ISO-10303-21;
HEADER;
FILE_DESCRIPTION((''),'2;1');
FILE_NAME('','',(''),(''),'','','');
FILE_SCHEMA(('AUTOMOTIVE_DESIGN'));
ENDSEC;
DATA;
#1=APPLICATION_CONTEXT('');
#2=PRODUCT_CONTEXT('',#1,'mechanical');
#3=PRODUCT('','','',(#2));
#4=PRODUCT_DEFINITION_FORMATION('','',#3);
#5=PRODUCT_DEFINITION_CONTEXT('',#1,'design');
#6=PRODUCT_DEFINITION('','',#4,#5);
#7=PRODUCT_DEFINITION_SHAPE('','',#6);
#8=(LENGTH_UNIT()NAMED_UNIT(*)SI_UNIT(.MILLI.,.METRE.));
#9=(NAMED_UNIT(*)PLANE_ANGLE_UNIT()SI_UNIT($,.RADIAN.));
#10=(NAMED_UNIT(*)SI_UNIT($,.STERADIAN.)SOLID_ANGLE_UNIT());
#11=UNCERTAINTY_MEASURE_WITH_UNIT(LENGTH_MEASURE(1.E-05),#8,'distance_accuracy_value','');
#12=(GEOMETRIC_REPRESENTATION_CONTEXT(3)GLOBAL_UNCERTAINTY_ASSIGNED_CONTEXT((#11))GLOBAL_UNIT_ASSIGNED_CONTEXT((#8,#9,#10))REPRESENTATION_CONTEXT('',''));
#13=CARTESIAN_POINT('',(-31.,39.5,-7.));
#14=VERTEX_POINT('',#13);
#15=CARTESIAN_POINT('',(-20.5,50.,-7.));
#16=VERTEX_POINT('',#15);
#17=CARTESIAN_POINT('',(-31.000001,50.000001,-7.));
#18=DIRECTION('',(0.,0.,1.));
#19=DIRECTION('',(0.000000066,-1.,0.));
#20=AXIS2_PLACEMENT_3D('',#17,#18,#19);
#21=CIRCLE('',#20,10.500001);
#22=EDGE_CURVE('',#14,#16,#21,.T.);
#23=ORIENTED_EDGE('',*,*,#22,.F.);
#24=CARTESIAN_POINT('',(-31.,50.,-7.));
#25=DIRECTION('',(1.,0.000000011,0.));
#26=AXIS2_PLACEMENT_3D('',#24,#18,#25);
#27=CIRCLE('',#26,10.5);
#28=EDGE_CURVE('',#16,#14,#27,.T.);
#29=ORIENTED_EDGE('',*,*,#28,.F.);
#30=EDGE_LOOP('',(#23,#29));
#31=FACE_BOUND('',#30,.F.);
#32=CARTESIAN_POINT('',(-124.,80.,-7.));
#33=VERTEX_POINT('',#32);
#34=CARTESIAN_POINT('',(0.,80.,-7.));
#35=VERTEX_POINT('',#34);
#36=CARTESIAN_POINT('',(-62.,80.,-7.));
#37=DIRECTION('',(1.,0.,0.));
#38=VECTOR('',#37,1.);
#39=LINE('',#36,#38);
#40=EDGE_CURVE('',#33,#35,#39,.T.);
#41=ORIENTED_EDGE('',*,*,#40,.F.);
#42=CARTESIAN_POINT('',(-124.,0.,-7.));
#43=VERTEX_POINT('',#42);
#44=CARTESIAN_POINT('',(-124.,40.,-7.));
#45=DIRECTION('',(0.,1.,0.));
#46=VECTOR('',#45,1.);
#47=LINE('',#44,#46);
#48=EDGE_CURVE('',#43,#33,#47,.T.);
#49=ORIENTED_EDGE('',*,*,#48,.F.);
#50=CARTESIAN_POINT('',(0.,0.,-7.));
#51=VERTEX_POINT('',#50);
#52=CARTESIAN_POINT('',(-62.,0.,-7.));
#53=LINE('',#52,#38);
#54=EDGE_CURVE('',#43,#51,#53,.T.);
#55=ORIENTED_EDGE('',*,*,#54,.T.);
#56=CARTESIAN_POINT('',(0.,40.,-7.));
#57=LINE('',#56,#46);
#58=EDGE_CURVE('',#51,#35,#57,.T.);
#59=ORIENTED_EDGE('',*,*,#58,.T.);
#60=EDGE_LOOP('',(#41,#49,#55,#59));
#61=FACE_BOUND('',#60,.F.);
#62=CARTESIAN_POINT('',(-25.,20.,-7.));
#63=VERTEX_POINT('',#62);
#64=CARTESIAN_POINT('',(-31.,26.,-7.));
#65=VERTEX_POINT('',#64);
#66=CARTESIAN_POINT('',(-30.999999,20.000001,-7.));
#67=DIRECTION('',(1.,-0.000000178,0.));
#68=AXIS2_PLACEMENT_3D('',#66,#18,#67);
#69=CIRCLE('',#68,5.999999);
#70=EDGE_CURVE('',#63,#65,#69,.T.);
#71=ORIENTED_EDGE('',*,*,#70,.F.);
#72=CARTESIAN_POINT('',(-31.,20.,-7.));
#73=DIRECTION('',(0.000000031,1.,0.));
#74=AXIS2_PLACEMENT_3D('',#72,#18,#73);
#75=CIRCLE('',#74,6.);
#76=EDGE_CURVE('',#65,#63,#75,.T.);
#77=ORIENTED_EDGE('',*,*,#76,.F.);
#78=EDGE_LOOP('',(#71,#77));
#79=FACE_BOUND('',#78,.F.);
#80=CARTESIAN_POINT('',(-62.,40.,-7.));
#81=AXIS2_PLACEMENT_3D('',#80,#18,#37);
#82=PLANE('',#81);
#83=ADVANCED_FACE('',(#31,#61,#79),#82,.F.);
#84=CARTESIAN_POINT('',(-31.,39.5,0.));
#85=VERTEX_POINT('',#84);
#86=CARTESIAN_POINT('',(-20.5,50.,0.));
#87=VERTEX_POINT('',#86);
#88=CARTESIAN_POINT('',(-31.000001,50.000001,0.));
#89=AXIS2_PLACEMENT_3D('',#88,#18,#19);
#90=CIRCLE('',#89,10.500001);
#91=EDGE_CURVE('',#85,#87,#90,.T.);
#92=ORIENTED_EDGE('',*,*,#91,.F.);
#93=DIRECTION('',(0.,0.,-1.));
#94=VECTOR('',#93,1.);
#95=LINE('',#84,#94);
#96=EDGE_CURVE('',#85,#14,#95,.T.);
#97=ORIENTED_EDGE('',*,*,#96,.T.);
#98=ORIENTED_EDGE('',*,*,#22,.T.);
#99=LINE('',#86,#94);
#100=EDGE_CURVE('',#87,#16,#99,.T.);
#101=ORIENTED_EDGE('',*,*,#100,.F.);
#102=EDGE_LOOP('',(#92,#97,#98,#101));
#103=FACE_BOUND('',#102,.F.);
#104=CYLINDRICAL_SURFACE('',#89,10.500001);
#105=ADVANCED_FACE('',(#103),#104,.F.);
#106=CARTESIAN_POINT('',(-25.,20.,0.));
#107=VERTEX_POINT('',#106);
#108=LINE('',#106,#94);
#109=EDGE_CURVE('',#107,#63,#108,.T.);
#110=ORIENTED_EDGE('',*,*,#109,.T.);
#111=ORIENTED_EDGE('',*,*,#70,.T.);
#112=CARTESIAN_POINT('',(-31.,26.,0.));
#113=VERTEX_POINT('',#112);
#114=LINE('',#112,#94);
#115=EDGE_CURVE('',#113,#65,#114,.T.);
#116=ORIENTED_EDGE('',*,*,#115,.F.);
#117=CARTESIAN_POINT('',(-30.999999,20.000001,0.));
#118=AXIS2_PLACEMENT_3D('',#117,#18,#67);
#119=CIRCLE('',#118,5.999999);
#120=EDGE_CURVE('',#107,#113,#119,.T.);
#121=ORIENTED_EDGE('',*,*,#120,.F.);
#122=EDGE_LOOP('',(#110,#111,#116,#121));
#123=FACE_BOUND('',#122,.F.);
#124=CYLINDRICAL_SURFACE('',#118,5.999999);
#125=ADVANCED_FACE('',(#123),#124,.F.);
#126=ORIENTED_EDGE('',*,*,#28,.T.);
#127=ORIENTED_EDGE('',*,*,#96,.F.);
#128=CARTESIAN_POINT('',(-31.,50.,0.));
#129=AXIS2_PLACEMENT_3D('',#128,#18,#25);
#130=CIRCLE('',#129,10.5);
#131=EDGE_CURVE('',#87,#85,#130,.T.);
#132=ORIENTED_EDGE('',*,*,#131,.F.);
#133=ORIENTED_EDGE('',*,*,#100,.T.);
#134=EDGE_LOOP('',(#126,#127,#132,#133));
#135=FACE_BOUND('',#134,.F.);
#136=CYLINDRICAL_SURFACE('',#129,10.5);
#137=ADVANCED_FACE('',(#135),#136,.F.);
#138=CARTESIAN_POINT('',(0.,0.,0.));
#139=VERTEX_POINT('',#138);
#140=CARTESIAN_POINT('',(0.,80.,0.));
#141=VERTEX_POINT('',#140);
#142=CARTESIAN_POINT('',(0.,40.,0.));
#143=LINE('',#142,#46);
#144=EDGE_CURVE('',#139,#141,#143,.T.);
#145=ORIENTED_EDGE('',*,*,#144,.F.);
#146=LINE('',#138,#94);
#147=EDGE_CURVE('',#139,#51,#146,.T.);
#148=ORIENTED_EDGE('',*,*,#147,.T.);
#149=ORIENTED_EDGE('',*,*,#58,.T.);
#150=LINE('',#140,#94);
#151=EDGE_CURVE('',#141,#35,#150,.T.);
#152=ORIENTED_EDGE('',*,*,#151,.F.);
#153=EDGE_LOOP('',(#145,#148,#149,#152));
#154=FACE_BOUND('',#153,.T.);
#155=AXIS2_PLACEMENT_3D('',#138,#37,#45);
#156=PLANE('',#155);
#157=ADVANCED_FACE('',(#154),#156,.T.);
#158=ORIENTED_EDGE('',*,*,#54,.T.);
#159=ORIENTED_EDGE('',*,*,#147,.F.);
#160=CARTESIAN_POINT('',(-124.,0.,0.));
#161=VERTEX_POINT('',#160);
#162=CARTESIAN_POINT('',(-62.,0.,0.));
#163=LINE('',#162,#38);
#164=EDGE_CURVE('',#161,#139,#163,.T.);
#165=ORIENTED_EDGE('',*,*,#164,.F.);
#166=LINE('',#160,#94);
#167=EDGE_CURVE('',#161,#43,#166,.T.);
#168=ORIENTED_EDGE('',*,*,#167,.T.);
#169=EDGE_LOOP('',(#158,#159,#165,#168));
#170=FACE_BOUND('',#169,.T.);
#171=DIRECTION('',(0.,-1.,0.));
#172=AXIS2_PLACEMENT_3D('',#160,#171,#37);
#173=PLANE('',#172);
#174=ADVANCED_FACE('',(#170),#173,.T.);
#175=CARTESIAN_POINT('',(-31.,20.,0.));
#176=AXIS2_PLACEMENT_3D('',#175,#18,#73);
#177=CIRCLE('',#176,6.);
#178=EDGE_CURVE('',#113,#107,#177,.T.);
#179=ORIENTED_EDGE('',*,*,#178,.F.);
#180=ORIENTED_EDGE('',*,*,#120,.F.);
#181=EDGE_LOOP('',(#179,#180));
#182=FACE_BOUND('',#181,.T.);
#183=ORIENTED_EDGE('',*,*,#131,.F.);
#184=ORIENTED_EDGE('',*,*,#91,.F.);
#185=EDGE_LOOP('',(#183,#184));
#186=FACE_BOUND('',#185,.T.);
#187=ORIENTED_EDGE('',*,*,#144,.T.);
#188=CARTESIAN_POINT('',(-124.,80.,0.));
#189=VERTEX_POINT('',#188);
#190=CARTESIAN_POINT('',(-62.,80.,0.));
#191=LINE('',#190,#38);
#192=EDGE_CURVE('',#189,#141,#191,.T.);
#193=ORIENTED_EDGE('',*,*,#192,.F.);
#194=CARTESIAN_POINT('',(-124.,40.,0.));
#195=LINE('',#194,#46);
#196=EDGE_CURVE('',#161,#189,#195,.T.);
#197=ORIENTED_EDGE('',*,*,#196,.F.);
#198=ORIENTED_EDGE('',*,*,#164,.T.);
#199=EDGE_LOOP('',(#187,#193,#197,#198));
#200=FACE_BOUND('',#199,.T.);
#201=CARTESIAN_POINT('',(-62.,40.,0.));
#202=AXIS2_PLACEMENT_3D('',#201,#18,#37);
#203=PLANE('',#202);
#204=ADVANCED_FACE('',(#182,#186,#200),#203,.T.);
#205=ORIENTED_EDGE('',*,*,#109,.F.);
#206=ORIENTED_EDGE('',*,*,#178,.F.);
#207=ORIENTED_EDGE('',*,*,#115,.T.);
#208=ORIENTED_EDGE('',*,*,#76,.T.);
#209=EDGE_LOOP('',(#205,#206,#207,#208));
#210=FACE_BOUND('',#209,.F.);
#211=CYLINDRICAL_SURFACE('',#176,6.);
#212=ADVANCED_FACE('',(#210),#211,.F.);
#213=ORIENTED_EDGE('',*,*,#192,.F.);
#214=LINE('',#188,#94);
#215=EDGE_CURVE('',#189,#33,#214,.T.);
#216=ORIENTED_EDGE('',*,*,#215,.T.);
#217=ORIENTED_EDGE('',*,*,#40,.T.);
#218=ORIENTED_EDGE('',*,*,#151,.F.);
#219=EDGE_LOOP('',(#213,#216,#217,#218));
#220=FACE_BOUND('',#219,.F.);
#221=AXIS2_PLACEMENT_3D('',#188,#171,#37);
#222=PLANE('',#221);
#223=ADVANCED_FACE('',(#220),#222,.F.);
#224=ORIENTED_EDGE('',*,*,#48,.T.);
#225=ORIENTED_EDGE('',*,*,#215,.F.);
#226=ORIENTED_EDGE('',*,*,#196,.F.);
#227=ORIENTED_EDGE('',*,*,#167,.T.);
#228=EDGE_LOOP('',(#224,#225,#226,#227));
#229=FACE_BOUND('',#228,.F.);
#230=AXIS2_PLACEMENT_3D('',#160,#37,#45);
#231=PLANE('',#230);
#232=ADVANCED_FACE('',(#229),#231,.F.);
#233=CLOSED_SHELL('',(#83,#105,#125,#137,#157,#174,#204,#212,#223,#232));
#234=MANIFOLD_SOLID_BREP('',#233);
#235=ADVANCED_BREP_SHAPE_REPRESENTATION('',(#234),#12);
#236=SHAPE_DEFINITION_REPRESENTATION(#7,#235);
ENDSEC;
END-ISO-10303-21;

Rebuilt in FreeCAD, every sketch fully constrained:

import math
import FreeCAD as App
import Part
import Sketcher

V = App.Vector

doc = App.newDocument("Part")
body = doc.addObject("PartDesign::Body", "Body")

sketch1 = doc.addObject("Sketcher::SketchObject", "Sketch")
body.addObject(sketch1)
sketch1.AttachmentSupport = (doc.XY_Plane, [""])
sketch1.MapMode = "FlatFace"
sketch1.addGeometry([
    Part.LineSegment(V(-124, 80, 0), V(-124, 0, 0)),
    Part.LineSegment(V(-124, 0, 0), V(0, 0, 0)),
    Part.LineSegment(V(0, 0, 0), V(0, 80, 0)),
    Part.LineSegment(V(0, 80, 0), V(-124, 80, 0)),
], False)
sketch1.addConstraint([
    Sketcher.Constraint("Coincident", 0, 2, 1, 1),
    Sketcher.Constraint("Coincident", 1, 2, 2, 1),
    Sketcher.Constraint("Coincident", 2, 2, 3, 1),
    Sketcher.Constraint("Coincident", 3, 2, 0, 1),
    Sketcher.Constraint("Vertical", 0),
    Sketcher.Constraint("Horizontal", 1),
    Sketcher.Constraint("Vertical", 2),
    Sketcher.Constraint("Horizontal", 3),
    Sketcher.Constraint("Coincident", 1, 2, -1, 1),
    Sketcher.Constraint("DistanceX", 1, 1, 1, 2, 124.0),
    Sketcher.Constraint("DistanceY", 0, 2, 0, 1, 80.0),
])
pad1 = doc.addObject("PartDesign::Pad", "Pad")
body.addObject(pad1)
pad1.Profile = sketch1
pad1.Length = 7
pad1.Reversed = True

sketch2 = doc.addObject("Sketcher::SketchObject", "Sketch001")
body.addObject(sketch2)
sketch2.AttachmentSupport = (doc.XY_Plane, [""])
sketch2.MapMode = "FlatFace"
sketch2.addGeometry([
    Part.ArcOfCircle(Part.Circle(V(-31, 50, 0), V(0, 0, 1), 10), math.radians(0), math.radians(270)),
    Part.ArcOfCircle(Part.Circle(V(-31, 50, 0), V(0, 0, 1), 11), math.radians(-90), math.radians(0)),
    Part.ArcOfCircle(Part.Circle(V(-31, 20, 0), V(0, 0, 1), 6), math.radians(0), math.radians(90)),
    Part.ArcOfCircle(Part.Circle(V(-31, 20, 0), V(0, 0, 1), 6), math.radians(90), math.radians(360)),
], False)
sketch2.addConstraint([
    Sketcher.Constraint("Tangent", 0, 1, 1, 2),
    Sketcher.Constraint("Coincident", 1, 1, 0, 2),
    Sketcher.Constraint("Tangent", 2, 1, 3, 2),
    Sketcher.Constraint("Coincident", 3, 1, 2, 2),
    Sketcher.Constraint("Horizontal", 1, 3, 0, 1),
    Sketcher.Constraint("Horizontal", 3, 3, 2, 1),
    Sketcher.Constraint("Vertical", 1, 3, 2, 3),
    Sketcher.Constraint("Vertical", 3, 3, 1, 1),
    Sketcher.Constraint("Vertical", 1, 1, 3, 1),
    Sketcher.Constraint("Radius", 2, 5.999999),
    Sketcher.Constraint("Radius", 0, 10.5),
    Sketcher.Constraint("DistanceX", 0, 3, -1, 1, 31.0),
    Sketcher.Constraint("DistanceY", -1, 1, 0, 3, 50.0),
    Sketcher.Constraint("DistanceY", -1, 1, 2, 3, 20.000001),
])
pocket1 = doc.addObject("PartDesign::Pocket", "Pocket")
body.addObject(pocket1)
pocket1.Profile = sketch2
pocket1.Length = 25

doc.recompute()
